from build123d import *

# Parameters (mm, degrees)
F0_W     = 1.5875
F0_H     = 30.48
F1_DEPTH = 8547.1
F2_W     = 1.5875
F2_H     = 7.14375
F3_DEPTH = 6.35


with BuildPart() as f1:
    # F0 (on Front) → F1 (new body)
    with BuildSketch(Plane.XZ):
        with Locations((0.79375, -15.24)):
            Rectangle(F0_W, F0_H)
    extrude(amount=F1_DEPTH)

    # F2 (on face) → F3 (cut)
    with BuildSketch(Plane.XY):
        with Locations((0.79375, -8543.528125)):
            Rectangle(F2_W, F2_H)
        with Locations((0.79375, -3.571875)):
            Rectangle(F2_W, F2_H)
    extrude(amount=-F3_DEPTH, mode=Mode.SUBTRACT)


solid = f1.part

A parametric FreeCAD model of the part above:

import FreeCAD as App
import Part
import Sketcher
Q = App.Units.Quantity

doc = App.newDocument("Part")
body = doc.addObject("PartDesign::Body", "Body")

# Sketch on XZ plane
sketch1 = body.newObject("Sketcher::SketchObject", "Sketch")
sketch1.AttachmentSupport = (doc.getObject("XZ_Plane"), [""])
sketch1.MapMode = "FlatFace"
sketch1.addGeometry([
    Part.LineSegment(App.Vector(0, 0, 0), App.Vector(0, -30.48, 0)),
    Part.LineSegment(App.Vector(0, -30.48, 0), App.Vector(1.5875, -30.48, 0)),
    Part.LineSegment(App.Vector(1.5875, -30.48, 0), App.Vector(1.5875, 0, 0)),
    Part.LineSegment(App.Vector(1.5875, 0, 0), App.Vector(0, 0, 0)),
], False)
sketch1.addConstraint([
    Sketcher.Constraint("Coincident", 0, 2, 1, 1),
    Sketcher.Constraint("Coincident", 1, 2, 2, 1),
    Sketcher.Constraint("Coincident", 2, 2, 3, 1),
    Sketcher.Constraint("Coincident", 3, 2, 0, 1),
    Sketcher.Constraint("Vertical", 0),
    Sketcher.Constraint("Horizontal", 1),
    Sketcher.Constraint("Vertical", 2),
    Sketcher.Constraint("Horizontal", 3),
    Sketcher.Constraint("Coincident", 3, 2, -1, 1),
    Sketcher.Constraint("DistanceY", 0, 2, 0, 1, Q("1.2 in")),
    Sketcher.Constraint("DistanceX", 1, 1, 1, 2, Q("0.0625 in")),
])
pad1 = body.newObject("PartDesign::Pad", "Pad")
pad1.Profile = sketch1
pad1.Length = Q("336.5 in")

# Sketch on XY plane
sketch2 = body.newObject("Sketcher::SketchObject", "Sketch001")
sketch2.AttachmentSupport = (doc.getObject("XY_Plane"), [""])
sketch2.MapMode = "FlatFace"
sketch2.addGeometry([
    Part.LineSegment(App.Vector(0, -8539.95625, 0), App.Vector(0, -8547.1, 0)),  # 0
    Part.LineSegment(App.Vector(0, -8547.1, 0), App.Vector(1.5875, -8547.1, 0)),  # 1
    Part.LineSegment(App.Vector(1.5875, -8547.1, 0), App.Vector(1.5875, -8539.95625, 0)),  # 2
    Part.LineSegment(App.Vector(1.5875, -8539.95625, 0), App.Vector(0, -8539.95625, 0)),  # 3
    Part.LineSegment(App.Vector(0, 0, 0), App.Vector(0, -7.14375, 0)),  # 4
    Part.LineSegment(App.Vector(0, -7.14375, 0), App.Vector(1.5875, -7.14375, 0)),  # 5
    Part.LineSegment(App.Vector(1.5875, -7.14375, 0), App.Vector(1.5875, 0, 0)),  # 6
    Part.LineSegment(App.Vector(1.5875, 0, 0), App.Vector(0, 0, 0)),  # 7
], False)
sketch2.addConstraint([
    Sketcher.Constraint("Coincident", 0, 2, 1, 1),
    Sketcher.Constraint("Coincident", 1, 2, 2, 1),
    Sketcher.Constraint("Coincident", 2, 2, 3, 1),
    Sketcher.Constraint("Coincident", 3, 2, 0, 1),
    Sketcher.Constraint("Coincident", 4, 2, 5, 1),
    Sketcher.Constraint("Coincident", 5, 2, 6, 1),
    Sketcher.Constraint("Coincident", 6, 2, 7, 1),
    Sketcher.Constraint("Coincident", 7, 2, 4, 1),
    Sketcher.Constraint("Vertical", 0),
    Sketcher.Constraint("Horizontal", 1),
    Sketcher.Constraint("Vertical", 2),
    Sketcher.Constraint("Horizontal", 3),
    Sketcher.Constraint("Vertical", 4),
    Sketcher.Constraint("Horizontal", 5),
    Sketcher.Constraint("Vertical", 6),
    Sketcher.Constraint("Horizontal", 7),
    Sketcher.Constraint("Coincident", 7, 2, -1, 1),
    Sketcher.Constraint("PointOnObject", 0, 2, -2),
    Sketcher.Constraint("Vertical", 2, 2, 5, 2),
    Sketcher.Constraint("Equal", 2, 4),
    Sketcher.Constraint("DistanceY", 0, 2, -1, 1, Q("336.5 in")),
    Sketcher.Constraint("DistanceX", 1, 1, 1, 2, Q("0.0625 in")),
    Sketcher.Constraint("DistanceY", 0, 2, 0, 1, Q("0.28125 in")),
])
pocket1 = body.newObject("PartDesign::Pocket", "Pocket")
pocket1.Profile = sketch2
pocket1.Length = Q("0.25 in")

doc.recompute()
